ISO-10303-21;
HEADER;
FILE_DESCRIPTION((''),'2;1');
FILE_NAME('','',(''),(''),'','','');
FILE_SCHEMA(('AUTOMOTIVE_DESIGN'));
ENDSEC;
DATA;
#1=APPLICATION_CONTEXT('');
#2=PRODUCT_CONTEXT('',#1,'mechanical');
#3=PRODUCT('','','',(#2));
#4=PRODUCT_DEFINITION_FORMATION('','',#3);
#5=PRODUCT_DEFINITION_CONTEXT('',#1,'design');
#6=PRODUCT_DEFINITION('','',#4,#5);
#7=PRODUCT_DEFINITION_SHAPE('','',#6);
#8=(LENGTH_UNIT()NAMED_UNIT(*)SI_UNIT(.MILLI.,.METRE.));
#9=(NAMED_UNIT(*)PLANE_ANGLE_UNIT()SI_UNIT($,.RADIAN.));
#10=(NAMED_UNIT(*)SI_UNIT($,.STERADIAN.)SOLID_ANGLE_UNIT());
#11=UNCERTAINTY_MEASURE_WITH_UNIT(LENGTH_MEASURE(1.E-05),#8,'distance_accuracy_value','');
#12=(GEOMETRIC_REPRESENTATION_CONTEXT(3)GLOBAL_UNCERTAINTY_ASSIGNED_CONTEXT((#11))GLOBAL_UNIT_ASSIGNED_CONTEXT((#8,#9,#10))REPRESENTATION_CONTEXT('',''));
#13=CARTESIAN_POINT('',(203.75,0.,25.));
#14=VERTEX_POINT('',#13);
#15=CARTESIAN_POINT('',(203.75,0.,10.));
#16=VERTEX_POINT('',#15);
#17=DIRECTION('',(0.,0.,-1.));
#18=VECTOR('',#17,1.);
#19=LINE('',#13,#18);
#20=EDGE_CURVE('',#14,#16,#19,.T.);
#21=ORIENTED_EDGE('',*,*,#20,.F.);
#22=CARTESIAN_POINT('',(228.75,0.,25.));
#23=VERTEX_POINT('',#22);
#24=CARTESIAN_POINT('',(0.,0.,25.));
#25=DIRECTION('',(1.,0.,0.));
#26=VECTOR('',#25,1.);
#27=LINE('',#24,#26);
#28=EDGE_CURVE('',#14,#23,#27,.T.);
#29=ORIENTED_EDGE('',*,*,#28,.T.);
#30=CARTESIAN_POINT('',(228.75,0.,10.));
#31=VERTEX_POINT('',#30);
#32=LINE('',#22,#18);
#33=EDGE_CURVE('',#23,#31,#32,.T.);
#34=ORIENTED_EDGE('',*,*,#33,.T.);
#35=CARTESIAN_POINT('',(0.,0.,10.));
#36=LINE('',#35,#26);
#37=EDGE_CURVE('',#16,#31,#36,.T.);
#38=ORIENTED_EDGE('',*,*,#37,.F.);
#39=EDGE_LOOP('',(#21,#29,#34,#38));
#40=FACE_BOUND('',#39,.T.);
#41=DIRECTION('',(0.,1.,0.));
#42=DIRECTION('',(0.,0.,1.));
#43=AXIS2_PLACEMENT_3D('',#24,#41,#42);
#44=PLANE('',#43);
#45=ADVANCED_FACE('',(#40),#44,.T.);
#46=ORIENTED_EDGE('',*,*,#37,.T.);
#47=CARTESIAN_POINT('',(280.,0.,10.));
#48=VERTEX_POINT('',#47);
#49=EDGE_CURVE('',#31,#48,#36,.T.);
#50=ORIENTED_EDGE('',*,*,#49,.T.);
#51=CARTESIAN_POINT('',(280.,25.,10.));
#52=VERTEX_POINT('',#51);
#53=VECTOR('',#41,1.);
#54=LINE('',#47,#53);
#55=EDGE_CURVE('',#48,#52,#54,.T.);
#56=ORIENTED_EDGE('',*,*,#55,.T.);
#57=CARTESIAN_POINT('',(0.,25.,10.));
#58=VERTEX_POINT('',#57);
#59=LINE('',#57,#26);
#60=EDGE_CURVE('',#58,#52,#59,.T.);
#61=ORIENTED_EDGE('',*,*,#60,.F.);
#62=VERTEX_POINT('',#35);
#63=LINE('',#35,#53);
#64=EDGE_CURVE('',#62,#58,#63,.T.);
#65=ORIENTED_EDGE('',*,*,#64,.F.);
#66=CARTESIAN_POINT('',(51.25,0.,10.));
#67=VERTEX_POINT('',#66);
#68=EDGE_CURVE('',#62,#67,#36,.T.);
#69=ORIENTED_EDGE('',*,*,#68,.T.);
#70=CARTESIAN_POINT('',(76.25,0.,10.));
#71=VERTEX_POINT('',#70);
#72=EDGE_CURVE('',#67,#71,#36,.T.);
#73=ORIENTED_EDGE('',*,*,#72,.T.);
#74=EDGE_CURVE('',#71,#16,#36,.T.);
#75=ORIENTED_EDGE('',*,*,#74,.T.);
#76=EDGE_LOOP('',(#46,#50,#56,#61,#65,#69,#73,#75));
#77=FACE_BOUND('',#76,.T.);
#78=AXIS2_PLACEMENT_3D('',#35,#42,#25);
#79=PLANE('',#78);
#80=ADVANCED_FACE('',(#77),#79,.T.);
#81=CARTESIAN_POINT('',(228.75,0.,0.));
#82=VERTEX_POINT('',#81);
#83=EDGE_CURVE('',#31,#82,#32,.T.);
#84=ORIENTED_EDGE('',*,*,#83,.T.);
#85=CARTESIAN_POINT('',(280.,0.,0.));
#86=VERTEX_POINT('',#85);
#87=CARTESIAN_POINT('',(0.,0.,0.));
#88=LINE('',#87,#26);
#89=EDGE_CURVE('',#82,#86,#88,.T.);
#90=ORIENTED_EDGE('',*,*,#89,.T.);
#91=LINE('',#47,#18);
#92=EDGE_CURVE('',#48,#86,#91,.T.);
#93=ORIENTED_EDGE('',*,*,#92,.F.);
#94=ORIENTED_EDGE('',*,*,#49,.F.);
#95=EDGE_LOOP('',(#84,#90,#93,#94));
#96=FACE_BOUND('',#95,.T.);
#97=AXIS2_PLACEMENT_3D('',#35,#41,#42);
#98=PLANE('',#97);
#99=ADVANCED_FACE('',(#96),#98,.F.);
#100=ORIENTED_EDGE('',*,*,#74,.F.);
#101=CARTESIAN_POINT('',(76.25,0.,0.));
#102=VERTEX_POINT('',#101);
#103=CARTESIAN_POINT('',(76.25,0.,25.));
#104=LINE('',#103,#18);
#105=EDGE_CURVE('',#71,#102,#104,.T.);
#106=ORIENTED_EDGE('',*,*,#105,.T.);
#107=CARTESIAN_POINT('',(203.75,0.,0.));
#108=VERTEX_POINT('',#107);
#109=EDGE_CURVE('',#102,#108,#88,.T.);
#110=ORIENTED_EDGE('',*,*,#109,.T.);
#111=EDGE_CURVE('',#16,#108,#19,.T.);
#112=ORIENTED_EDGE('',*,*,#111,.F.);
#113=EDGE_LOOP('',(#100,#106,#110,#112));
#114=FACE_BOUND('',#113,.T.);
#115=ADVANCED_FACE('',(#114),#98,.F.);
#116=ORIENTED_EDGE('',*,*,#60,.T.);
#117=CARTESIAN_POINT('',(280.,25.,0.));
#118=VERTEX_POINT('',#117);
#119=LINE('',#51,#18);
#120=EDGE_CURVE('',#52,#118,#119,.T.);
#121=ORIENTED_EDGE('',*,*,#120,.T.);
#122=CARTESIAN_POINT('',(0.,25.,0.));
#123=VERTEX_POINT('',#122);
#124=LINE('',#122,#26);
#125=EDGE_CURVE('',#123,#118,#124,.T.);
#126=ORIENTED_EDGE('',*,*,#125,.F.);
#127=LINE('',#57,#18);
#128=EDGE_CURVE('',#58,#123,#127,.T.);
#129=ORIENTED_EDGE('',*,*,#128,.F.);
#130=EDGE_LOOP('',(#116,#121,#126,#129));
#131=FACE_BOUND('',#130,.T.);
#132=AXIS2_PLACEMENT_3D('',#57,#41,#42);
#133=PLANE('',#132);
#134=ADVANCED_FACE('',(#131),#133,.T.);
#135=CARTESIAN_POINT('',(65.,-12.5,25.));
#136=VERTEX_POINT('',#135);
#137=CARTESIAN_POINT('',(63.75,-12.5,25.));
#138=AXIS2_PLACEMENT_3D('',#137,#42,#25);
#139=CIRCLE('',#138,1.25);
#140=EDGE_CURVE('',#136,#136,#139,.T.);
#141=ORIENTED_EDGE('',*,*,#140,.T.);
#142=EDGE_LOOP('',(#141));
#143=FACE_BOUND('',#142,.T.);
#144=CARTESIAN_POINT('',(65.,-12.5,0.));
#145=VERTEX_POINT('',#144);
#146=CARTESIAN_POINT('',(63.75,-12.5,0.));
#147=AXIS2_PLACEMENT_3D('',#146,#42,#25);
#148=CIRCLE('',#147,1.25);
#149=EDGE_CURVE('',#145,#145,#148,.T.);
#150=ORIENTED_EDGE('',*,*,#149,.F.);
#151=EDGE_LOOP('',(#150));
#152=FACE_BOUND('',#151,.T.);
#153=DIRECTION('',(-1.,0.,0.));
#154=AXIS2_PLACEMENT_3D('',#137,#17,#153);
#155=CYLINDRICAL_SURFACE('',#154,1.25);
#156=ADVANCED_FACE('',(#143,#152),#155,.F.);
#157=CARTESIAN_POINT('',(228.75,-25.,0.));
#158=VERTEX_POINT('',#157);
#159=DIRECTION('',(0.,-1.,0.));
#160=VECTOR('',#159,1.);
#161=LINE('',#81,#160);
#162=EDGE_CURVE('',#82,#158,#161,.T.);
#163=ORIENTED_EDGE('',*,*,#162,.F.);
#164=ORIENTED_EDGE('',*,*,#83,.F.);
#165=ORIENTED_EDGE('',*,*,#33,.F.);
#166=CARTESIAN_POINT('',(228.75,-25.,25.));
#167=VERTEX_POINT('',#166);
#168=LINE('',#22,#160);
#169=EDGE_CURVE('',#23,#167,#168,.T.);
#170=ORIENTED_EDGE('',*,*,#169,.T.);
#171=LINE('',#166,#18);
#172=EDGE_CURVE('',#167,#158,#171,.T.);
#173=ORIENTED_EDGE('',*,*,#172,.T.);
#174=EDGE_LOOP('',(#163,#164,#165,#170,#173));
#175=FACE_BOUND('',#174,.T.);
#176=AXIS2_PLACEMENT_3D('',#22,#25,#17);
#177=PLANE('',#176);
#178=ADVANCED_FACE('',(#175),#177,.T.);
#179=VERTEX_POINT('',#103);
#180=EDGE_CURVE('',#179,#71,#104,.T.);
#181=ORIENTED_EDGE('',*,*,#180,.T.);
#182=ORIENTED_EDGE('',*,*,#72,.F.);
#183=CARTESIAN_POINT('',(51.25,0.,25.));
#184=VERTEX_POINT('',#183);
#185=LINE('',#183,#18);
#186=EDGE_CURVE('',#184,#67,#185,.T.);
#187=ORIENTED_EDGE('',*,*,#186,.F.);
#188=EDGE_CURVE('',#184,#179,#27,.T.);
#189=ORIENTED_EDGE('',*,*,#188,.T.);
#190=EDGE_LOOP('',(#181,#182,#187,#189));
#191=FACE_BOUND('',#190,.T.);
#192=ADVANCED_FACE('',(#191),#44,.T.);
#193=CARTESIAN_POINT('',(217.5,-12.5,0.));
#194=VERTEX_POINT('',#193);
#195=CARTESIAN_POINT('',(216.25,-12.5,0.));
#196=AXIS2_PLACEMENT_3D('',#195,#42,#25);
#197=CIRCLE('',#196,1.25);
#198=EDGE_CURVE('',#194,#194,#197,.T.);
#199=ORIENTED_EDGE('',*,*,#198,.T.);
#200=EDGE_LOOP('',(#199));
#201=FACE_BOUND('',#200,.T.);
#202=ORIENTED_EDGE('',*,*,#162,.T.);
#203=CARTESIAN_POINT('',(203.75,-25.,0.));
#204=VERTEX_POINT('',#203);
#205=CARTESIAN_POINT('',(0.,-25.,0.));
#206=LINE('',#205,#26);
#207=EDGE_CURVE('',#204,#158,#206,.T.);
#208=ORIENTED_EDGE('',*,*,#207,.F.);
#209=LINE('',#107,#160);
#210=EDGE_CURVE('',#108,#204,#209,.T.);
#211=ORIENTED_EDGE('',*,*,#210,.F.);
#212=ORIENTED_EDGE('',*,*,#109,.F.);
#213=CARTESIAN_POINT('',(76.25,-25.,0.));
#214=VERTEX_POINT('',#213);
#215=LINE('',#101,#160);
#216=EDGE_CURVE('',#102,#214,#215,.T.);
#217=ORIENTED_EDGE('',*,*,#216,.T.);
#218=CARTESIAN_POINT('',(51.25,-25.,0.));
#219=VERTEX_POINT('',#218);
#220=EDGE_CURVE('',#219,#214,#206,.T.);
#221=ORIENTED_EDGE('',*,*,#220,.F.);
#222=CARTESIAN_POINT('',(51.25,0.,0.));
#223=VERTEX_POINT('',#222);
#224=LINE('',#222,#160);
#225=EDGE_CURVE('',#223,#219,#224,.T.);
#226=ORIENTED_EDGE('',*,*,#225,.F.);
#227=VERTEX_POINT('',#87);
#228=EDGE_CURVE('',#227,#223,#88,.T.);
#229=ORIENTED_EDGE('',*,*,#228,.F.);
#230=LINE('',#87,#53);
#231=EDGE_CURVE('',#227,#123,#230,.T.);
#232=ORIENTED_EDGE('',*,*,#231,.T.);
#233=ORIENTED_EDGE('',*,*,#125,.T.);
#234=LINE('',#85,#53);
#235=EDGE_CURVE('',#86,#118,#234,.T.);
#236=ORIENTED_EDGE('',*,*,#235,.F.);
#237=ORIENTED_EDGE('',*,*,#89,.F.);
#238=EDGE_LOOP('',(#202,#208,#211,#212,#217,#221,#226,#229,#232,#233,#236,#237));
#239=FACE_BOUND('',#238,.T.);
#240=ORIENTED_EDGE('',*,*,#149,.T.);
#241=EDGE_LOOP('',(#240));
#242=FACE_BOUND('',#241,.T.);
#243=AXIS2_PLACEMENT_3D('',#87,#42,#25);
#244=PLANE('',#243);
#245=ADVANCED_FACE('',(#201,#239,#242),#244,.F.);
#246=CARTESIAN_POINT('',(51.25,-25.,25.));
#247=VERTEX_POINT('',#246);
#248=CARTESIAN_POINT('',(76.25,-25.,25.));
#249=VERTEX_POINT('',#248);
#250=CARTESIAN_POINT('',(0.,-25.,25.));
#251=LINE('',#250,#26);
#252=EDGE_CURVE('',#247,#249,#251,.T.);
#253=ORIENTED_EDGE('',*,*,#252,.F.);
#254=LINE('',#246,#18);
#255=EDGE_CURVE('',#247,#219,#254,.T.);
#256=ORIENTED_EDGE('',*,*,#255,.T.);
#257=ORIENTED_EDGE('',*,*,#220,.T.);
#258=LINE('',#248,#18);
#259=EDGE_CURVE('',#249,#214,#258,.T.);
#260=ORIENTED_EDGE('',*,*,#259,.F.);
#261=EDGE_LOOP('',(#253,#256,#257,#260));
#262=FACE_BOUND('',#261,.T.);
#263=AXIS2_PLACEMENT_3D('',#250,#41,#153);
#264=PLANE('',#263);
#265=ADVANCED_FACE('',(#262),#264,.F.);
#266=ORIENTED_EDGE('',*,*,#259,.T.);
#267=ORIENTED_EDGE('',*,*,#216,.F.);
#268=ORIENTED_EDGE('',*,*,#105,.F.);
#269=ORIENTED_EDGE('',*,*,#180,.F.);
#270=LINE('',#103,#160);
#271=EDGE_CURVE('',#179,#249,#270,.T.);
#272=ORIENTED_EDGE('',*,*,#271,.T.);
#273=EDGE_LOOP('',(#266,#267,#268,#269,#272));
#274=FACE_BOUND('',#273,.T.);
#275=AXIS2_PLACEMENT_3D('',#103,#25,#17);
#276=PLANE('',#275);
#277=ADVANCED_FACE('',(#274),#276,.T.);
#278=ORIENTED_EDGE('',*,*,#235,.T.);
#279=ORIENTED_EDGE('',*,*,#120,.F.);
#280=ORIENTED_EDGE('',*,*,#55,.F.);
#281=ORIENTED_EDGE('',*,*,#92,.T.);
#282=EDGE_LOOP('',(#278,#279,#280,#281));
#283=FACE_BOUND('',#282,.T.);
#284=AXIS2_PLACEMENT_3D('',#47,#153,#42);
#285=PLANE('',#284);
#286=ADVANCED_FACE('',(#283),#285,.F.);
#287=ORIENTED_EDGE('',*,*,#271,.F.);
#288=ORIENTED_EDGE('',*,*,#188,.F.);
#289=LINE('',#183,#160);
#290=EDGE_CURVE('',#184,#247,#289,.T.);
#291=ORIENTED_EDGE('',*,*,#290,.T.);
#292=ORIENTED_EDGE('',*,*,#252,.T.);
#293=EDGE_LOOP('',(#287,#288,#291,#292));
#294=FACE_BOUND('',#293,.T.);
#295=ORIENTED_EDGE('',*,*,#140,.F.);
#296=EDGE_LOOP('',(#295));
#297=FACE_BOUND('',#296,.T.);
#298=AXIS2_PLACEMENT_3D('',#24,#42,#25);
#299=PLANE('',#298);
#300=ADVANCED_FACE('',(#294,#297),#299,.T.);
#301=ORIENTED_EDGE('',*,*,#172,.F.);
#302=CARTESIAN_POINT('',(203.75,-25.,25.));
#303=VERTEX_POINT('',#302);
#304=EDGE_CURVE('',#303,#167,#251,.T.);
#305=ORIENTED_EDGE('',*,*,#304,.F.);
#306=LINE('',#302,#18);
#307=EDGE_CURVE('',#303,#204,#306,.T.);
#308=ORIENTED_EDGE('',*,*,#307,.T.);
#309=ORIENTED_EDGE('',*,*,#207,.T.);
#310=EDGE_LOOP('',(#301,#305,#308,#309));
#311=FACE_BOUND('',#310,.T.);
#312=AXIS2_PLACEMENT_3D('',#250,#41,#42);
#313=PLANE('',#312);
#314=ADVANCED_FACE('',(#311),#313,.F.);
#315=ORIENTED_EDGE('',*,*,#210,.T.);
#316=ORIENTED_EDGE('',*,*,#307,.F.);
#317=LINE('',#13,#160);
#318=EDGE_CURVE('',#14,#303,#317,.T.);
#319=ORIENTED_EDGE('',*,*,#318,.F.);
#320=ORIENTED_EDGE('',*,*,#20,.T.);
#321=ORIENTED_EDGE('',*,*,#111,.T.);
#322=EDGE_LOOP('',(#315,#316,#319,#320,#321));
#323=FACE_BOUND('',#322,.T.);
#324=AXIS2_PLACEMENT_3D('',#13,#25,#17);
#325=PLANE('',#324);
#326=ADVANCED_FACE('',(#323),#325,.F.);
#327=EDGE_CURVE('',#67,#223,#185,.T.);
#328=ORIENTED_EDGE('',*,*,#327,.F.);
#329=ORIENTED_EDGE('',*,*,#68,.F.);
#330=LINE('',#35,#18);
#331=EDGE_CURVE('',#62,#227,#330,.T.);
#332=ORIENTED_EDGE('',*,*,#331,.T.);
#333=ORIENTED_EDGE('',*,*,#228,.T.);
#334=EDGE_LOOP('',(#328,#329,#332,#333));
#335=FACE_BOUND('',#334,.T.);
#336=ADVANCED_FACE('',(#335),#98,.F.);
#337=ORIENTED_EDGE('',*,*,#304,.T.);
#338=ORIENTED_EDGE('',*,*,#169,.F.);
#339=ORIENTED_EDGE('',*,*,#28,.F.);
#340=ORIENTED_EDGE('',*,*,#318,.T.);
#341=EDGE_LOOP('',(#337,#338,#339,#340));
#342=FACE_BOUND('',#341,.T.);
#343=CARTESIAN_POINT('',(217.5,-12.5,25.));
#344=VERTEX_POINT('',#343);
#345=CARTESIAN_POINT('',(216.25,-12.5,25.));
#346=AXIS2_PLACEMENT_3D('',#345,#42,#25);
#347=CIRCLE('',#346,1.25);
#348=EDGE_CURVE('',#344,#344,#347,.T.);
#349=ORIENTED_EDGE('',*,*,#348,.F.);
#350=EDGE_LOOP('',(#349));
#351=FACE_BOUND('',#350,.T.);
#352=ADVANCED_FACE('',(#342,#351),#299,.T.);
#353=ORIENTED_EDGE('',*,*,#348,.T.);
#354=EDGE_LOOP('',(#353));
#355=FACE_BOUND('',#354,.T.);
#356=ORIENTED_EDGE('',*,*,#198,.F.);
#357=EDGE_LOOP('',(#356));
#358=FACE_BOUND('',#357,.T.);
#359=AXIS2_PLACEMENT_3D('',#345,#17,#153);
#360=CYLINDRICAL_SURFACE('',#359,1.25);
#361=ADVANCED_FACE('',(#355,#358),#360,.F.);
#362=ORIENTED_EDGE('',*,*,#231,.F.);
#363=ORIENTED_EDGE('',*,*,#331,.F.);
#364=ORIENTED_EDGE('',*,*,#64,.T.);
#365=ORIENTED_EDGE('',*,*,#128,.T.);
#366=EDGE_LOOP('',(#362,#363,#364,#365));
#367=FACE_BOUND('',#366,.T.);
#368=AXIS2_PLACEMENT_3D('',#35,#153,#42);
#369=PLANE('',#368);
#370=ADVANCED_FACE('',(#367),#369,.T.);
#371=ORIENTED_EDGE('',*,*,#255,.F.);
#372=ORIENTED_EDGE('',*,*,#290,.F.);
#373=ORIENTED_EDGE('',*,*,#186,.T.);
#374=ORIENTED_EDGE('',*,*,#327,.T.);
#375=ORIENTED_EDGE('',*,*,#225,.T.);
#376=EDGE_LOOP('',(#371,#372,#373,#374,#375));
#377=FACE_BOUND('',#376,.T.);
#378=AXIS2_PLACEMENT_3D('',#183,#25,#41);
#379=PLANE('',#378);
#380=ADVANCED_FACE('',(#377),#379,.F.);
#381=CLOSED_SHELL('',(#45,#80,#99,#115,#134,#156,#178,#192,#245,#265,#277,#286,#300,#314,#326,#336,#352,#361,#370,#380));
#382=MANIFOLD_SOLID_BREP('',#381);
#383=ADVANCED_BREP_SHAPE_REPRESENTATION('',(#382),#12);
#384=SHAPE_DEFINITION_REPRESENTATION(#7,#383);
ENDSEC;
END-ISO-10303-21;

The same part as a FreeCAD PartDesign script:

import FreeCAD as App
import Part
import Sketcher

doc = App.newDocument("Part")
params = doc.addObject("Spreadsheet::Sheet", "Params")
for row, (alias, value) in enumerate([
    ("sketch1_diameter", "2.5 mm"),
    ("sketch1_width", "25 mm"),
    ("pad1_length", "25 mm"),
    ("sketch2_diameter", "2.5 mm"),
    ("sketch2_width", "25 mm"),
    ("pad2_length", "25 mm"),
    ("sketch3_width", "280 mm"),
    ("sketch3_height", "25 mm"),
    ("pad3_length", "10 mm"),
], start=1):
    params.set(f"A{row}", alias)
    params.set(f"B{row}", "=" + value)
    params.setAlias(f"B{row}", alias)

body = doc.addObject("PartDesign::Body", "Body")

# Sketch on XY plane
sketch1 = body.newObject("Sketcher::SketchObject", "Sketch")
sketch1.AttachmentSupport = (doc.getObject("XY_Plane"), [""])
sketch1.MapMode = "FlatFace"
sketch1.addGeometry([
    Part.LineSegment(App.Vector(51.2, 0, 0), App.Vector(51.2, -25, 0)),  # 0
    Part.LineSegment(App.Vector(51.2, -25, 0), App.Vector(76.2, -25, 0)),  # 1
    Part.LineSegment(App.Vector(76.2, -25, 0), App.Vector(76.2, 0, 0)),  # 2
    Part.LineSegment(App.Vector(76.2, 0, 0), App.Vector(51.2, 0, 0)),  # 3
    Part.Circle(App.Vector(63.8, -12.5, 0), App.Vector(0, 0, 1), 1.2),  # 4
], False)
sketch1.addConstraint([
    Sketcher.Constraint("Coincident", 0, 2, 1, 1),
    Sketcher.Constraint("Coincident", 1, 2, 2, 1),
    Sketcher.Constraint("Coincident", 2, 2, 3, 1),
    Sketcher.Constraint("Coincident", 3, 2, 0, 1),
    Sketcher.Constraint("Vertical", 0),
    Sketcher.Constraint("Horizontal", 1),
    Sketcher.Constraint("Vertical", 2),
    Sketcher.Constraint("Horizontal", 3),
    Sketcher.Constraint("PointOnObject", 2, 2, -1),
    Sketcher.Constraint("Equal", 3, 0),
    Sketcher.Constraint("Diameter", 4, 2.5),
    Sketcher.Constraint("DistanceX", 1, 1, 1, 2, 25.0),
    Sketcher.Constraint("DistanceY", 4, 3, -1, 1, 12.5),
    Sketcher.Constraint("DistanceX", 0, 2, 4, 3, 12.5),
    Sketcher.Constraint("DistanceX", -1, 1, 4, 3, 63.75),
])
sketch1.setExpression("Constraints[10]", "Params.sketch1_diameter")
sketch1.setExpression("Constraints[11]", "Params.sketch1_width")
pad1 = body.newObject("PartDesign::Pad", "Pad")
pad1.Profile = sketch1
pad1.setExpression("Length", "Params.pad1_length")
body2 = doc.addObject("PartDesign::Body", "Body001")

# Sketch on XY plane
sketch2 = body2.newObject("Sketcher::SketchObject", "Sketch001")
sketch2.AttachmentSupport = (doc.getObject("XY_Plane001"), [""])
sketch2.MapMode = "FlatFace"
sketch2.addGeometry([
    Part.LineSegment(App.Vector(203.8, 0, 0), App.Vector(203.8, -25, 0)),  # 0
    Part.LineSegment(App.Vector(203.8, -25, 0), App.Vector(228.8, -25, 0)),  # 1
    Part.LineSegment(App.Vector(228.8, -25, 0), App.Vector(228.8, 0, 0)),  # 2
    Part.LineSegment(App.Vector(228.8, 0, 0), App.Vector(203.8, 0, 0)),  # 3
    Part.Circle(App.Vector(216.2, -12.5, 0), App.Vector(0, 0, 1), 1.2),  # 4
], False)
sketch2.addConstraint([
    Sketcher.Constraint("Coincident", 0, 2, 1, 1),
    Sketcher.Constraint("Coincident", 1, 2, 2, 1),
    Sketcher.Constraint("Coincident", 2, 2, 3, 1),
    Sketcher.Constraint("Coincident", 3, 2, 0, 1),
    Sketcher.Constraint("Vertical", 0),
    Sketcher.Constraint("Horizontal", 1),
    Sketcher.Constraint("Vertical", 2),
    Sketcher.Constraint("Horizontal", 3),
    Sketcher.Constraint("PointOnObject", 2, 2, -1),
    Sketcher.Constraint("Equal", 3, 0),
    Sketcher.Constraint("Diameter", 4, 2.5),
    Sketcher.Constraint("DistanceX", 1, 1, 1, 2, 25.0),
    Sketcher.Constraint("DistanceY", 4, 3, -1, 1, 12.5),
    Sketcher.Constraint("DistanceX", 0, 2, 4, 3, 12.5),
    Sketcher.Constraint("DistanceX", -1, 1, 4, 3, 216.25),
])
sketch2.setExpression("Constraints[10]", "Params.sketch2_diameter")
sketch2.setExpression("Constraints[11]", "Params.sketch2_width")
pad2 = body2.newObject("PartDesign::Pad", "Pad001")
pad2.Profile = sketch2
pad2.setExpression("Length", "Params.pad2_length")
body.AllowCompound = True
doc.recompute()

boolean = body.newObject("PartDesign::Boolean", "Boolean")
boolean.Type = "Fuse"
boolean.addObjects([body2])

# Sketch on XY plane
sketch3 = body.newObject("Sketcher::SketchObject", "Sketch002")
sketch3.AttachmentSupport = (doc.getObject("XY_Plane"), [""])
sketch3.MapMode = "FlatFace"
sketch3.addGeometry([
    Part.LineSegment(App.Vector(0, 25, 0), App.Vector(0, 0, 0)),
    Part.LineSegment(App.Vector(0, 0, 0), App.Vector(280, 0, 0)),
    Part.LineSegment(App.Vector(280, 0, 0), App.Vector(280, 25, 0)),
    Part.LineSegment(App.Vector(280, 25, 0), App.Vector(0, 25, 0)),
], False)
sketch3.addConstraint([
    Sketcher.Constraint("Coincident", 0, 2, 1, 1),
    Sketcher.Constraint("Coincident", 1, 2, 2, 1),
    Sketcher.Constraint("Coincident", 2, 2, 3, 1),
    Sketcher.Constraint("Coincident", 3, 2, 0, 1),
    Sketcher.Constraint("Vertical", 0),
    Sketcher.Constraint("Horizontal", 1),
    Sketcher.Constraint("Vertical", 2),
    Sketcher.Constraint("Horizontal", 3),
    Sketcher.Constraint("Coincident", 0, 2, -1, 1),
    Sketcher.Constraint("DistanceX", 1, 1, 1, 2, 280.0),
    Sketcher.Constraint("DistanceY", 0, 2, 0, 1, 25.0),
])
sketch3.setExpression("Constraints[9]", "Params.sketch3_width")
sketch3.setExpression("Constraints[10]", "Params.sketch3_height")
pad3 = body.newObject("PartDesign::Pad", "Pad002")
pad3.Profile = sketch3
pad3.setExpression("Length", "Params.pad3_length")

doc.recompute()
